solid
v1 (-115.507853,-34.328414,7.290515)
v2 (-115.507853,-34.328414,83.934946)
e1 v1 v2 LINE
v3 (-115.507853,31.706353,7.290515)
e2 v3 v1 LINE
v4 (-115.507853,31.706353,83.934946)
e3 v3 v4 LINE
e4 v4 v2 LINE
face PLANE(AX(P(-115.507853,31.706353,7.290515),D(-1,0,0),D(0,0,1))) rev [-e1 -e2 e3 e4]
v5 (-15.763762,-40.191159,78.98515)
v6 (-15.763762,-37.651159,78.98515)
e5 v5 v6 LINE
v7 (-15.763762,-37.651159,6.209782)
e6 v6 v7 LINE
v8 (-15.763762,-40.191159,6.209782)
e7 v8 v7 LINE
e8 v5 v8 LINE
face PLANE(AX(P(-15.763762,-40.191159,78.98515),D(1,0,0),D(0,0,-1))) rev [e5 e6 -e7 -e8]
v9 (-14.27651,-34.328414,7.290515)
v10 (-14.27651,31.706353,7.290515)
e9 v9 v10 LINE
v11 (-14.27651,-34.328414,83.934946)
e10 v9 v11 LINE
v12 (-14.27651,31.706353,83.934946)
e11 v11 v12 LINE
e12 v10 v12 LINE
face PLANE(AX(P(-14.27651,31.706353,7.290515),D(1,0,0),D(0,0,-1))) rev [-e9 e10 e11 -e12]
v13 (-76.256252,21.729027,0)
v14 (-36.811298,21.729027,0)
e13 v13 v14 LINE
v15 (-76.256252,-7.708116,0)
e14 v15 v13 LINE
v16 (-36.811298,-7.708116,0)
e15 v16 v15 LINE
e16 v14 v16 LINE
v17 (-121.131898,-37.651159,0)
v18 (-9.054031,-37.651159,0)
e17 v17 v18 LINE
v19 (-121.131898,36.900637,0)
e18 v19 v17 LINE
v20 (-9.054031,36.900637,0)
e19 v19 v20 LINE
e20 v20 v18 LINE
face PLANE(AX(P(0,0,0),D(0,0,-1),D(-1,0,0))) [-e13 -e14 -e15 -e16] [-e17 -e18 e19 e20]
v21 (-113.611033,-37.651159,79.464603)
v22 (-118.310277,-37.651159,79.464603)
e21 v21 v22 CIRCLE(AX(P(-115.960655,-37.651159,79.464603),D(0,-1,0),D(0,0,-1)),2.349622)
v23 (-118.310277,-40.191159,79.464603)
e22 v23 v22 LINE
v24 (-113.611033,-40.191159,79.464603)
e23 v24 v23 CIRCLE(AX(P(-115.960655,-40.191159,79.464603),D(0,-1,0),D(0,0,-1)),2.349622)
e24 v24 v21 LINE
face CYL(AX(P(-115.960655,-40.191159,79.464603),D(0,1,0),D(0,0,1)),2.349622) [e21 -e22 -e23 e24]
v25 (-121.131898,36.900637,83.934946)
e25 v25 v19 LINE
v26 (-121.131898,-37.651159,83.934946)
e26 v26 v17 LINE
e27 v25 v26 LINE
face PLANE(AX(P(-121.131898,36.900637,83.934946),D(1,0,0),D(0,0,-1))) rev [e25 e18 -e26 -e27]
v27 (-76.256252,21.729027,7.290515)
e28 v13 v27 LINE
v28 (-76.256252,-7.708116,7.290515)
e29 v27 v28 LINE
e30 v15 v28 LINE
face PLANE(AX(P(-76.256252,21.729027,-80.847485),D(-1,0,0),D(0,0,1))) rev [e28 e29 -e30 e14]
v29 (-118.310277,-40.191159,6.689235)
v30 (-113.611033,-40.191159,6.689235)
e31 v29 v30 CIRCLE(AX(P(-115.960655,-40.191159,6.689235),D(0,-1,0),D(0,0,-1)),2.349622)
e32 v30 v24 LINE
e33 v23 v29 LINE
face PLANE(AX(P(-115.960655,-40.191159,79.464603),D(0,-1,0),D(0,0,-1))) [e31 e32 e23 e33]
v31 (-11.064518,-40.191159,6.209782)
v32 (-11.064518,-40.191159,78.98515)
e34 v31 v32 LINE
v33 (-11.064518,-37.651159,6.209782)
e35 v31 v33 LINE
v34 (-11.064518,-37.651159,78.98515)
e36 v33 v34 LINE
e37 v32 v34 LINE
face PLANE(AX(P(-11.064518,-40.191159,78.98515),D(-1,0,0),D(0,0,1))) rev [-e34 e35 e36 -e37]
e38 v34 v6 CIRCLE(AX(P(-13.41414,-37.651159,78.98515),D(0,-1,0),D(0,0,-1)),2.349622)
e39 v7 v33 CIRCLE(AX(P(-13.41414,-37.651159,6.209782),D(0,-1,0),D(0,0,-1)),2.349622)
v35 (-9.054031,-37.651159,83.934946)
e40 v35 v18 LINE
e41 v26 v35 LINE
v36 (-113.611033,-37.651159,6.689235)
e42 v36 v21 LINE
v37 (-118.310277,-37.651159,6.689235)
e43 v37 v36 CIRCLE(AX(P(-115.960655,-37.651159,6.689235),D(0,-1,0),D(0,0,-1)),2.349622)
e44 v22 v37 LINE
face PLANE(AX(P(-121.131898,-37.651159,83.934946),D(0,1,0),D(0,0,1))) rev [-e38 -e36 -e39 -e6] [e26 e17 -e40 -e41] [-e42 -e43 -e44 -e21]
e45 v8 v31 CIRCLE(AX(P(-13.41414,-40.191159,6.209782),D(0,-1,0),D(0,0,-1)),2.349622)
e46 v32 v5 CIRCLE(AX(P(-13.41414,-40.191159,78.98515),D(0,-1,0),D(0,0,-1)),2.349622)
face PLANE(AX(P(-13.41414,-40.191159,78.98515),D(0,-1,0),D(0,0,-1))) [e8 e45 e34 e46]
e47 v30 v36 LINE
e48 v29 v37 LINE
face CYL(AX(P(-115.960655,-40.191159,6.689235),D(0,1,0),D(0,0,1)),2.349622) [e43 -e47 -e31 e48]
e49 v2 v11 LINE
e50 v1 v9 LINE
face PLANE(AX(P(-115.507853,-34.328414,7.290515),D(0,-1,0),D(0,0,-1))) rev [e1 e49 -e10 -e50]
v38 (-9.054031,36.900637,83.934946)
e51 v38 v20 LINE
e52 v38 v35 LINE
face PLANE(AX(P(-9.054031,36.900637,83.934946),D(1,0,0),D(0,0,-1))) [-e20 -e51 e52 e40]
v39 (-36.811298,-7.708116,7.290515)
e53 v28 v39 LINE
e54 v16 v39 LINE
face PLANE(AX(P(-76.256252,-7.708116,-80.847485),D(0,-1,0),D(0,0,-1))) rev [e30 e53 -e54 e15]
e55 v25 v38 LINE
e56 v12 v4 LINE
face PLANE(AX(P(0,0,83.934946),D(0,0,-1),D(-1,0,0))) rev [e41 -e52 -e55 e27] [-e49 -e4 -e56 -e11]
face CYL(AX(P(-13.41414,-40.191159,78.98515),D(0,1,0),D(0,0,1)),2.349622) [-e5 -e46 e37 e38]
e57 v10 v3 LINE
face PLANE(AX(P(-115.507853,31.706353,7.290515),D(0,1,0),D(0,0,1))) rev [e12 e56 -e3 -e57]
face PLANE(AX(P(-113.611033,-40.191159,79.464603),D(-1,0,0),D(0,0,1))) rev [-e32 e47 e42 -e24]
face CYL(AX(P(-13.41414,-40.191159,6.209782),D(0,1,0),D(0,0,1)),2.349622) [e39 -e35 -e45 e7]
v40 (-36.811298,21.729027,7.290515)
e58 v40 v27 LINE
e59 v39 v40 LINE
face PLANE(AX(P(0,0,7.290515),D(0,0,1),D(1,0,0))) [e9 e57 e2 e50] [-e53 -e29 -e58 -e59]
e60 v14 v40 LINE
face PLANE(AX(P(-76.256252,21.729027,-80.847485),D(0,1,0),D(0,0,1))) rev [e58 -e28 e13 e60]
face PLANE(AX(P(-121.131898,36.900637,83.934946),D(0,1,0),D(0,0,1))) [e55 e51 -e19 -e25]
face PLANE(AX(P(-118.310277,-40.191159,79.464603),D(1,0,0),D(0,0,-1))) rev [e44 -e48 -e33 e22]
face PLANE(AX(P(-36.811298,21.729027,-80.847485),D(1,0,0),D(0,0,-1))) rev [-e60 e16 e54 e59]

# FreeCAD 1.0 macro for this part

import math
import FreeCAD as App
import Part
import Sketcher
from FreeCAD import Vector
Q = App.Units.Quantity


def add_polygon(sketch, points):
    """Adds a closed chain of lines whose ends are joined by coincident constraints."""
    first, n = sketch.GeometryCount, len(points)
    for a, b in zip(points, points[1:] + points[:1]):
        sketch.addGeometry(Part.LineSegment(App.Vector(*a, 0), App.Vector(*b, 0)), False)
    for i in range(n):
        sketch.addConstraint(Sketcher.Constraint("Coincident", first + i, 2, first + (i + 1) % n, 1))

doc = App.newDocument("Part")
params = doc.addObject("Spreadsheet::Sheet", "Params")
for row, (alias, value) in enumerate([
    ("pad1_length", "83.934946 mm"),
    ("pocket1_length", "76.644431 mm"),
    ("pocket2_length", "3.47 in"),
    ("pad2_length", "0.1 in"),
], start=1):
    params.set(f"A{row}", alias)
    params.set(f"B{row}", "=" + value)
    params.setAlias(f"B{row}", alias)

body = doc.addObject("PartDesign::Body", "Body")

sketch1 = doc.addObject("Sketcher::SketchObject", "Sketch")
body.addObject(sketch1)
sketch1.AttachmentSupport = (doc.XY_Plane, [""])
sketch1.MapMode = "FlatFace"
add_polygon(sketch1, [(-121, 37), (-121, -38), (-9, -38), (-9, 37)])
sketch1.addConstraint([
    Sketcher.Constraint("Vertical", 0),
    Sketcher.Constraint("Horizontal", 1),
    Sketcher.Constraint("Vertical", 2),
    Sketcher.Constraint("Horizontal", 3),
    Sketcher.Constraint("DistanceX", 0, 2, -1, 1, Q("121.131898 mm")),
    Sketcher.Constraint("DistanceX", 1, 1, 1, 2, Q("112.077868 mm")),
    Sketcher.Constraint("DistanceY", 0, 2, 0, 1, Q("74.551796 mm")),
    Sketcher.Constraint("DistanceY", 0, 2, -1, 1, Q("37.651159 mm")),
])
pad1 = doc.addObject("PartDesign::Pad", "Pad")
body.addObject(pad1)
pad1.Profile = sketch1
pad1.setExpression("Length", "Params.pad1_length")

sketch2 = doc.addObject("Sketcher::SketchObject", "Sketch001")
body.addObject(sketch2)
sketch2.AttachmentSupport = (doc.XY_Plane, [""])
sketch2.MapMode = "FlatFace"
sketch2.AttachmentOffset = App.Placement(Vector(0, 0, 83.934946), App.Rotation())
add_polygon(sketch2, [(-116, 32), (-116, -34), (-14, -34), (-14, 32)])
sketch2.addConstraint([
    Sketcher.Constraint("Vertical", 0),
    Sketcher.Constraint("Horizontal", 1),
    Sketcher.Constraint("Vertical", 2),
    Sketcher.Constraint("Horizontal", 3),
    Sketcher.Constraint("DistanceX", 1, 1, 1, 2, Q("101.231344 mm")),
    Sketcher.Constraint("DistanceY", 0, 2, 0, 1, Q("66.034767 mm")),
    Sketcher.Constraint("DistanceX", 1, 2, -1, 1, Q("14.27651 mm")),
    Sketcher.Constraint("DistanceY", 0, 2, -1, 1, Q("34.328414 mm")),
])
pocket1 = doc.addObject("PartDesign::Pocket", "Pocket")
body.addObject(pocket1)
pocket1.Profile = sketch2
pocket1.setExpression("Length", "Params.pocket1_length")

sketch3 = doc.addObject("Sketcher::SketchObject", "Sketch002")
body.addObject(sketch3)
sketch3.AttachmentSupport = (doc.XY_Plane, [""])
sketch3.MapMode = "FlatFace"
sketch3.AttachmentOffset = App.Placement(Vector(0, 0, 7.290515), App.Rotation())
add_polygon(sketch3, [(-76, 22), (-76, -8), (-37, -8), (-37, 22)])
sketch3.addConstraint([
    Sketcher.Constraint("Vertical", 0),
    Sketcher.Constraint("Horizontal", 1),
    Sketcher.Constraint("Vertical", 2),
    Sketcher.Constraint("Horizontal", 3),
    Sketcher.Constraint("DistanceX", 1, 1, 1, 2, Q("39.444954 mm")),
    Sketcher.Constraint("DistanceY", 0, 2, 0, 1, Q("29.437143 mm")),
    Sketcher.Constraint("DistanceX", 0, 2, -1, 1, Q("76.256252 mm")),
    Sketcher.Constraint("DistanceY", 0, 2, -1, 1, Q("7.708116 mm")),
])
pocket2 = doc.addObject("PartDesign::Pocket", "Pocket001")
body.addObject(pocket2)
pocket2.Profile = sketch3
pocket2.setExpression("Length", "Params.pocket2_length")

sketch4 = doc.addObject("Sketcher::SketchObject", "Sketch003")
body.addObject(sketch4)
sketch4.AttachmentSupport = (doc.XZ_Plane, [""])
sketch4.MapMode = "FlatFace"
sketch4.AttachmentOffset = App.Placement(Vector(0, 0, 37.651159), App.Rotation())
sketch4.addGeometry([
    Part.LineSegment(Vector(-113.6, 6.7, 0), Vector(-113.6, 79.5, 0)),
    Part.ArcOfCircle(Part.Circle(Vector(-116, 79.5, 0), Vector(0, 0, 1), 2.3), math.radians(0), math.radians(180)),
    Part.LineSegment(Vector(-118.3, 79.5, 0), Vector(-118.3, 6.7, 0)),
    Part.ArcOfCircle(Part.Circle(Vector(-116, 6.7, 0), Vector(0, 0, 1), 2.3), math.radians(180), math.radians(360)),
    Part.LineSegment(Vector(-11.1, 6.2, 0), Vector(-11.1, 79, 0)),
    Part.ArcOfCircle(Part.Circle(Vector(-13.4, 79, 0), Vector(0, 0, 1), 2.3), math.radians(0), math.radians(180)),
    Part.LineSegment(Vector(-15.8, 79, 0), Vector(-15.8, 6.2, 0)),
    Part.ArcOfCircle(Part.Circle(Vector(-13.4, 6.2, 0), Vector(0, 0, 1), 2.3), math.radians(180), math.radians(360)),
], False)
sketch4.addConstraint([
    Sketcher.Constraint("Tangent", 0, 2, 1, 1),
    Sketcher.Constraint("Tangent", 1, 2, 2, 1),
    Sketcher.Constraint("Tangent", 2, 2, 3, 1),
    Sketcher.Constraint("Tangent", 3, 2, 0, 1),
    Sketcher.Constraint("Tangent", 4, 2, 5, 1),
    Sketcher.Constraint("Tangent", 5, 2, 6, 1),
    Sketcher.Constraint("Tangent", 6, 2, 7, 1),
    Sketcher.Constraint("Tangent", 7, 2, 4, 1),
    Sketcher.Constraint("Vertical", 0),
    Sketcher.Constraint("Vertical", 2),
    Sketcher.Constraint("Vertical", 4),
    Sketcher.Constraint("Vertical", 6),
    Sketcher.Constraint("Equal", 3, 5),
    Sketcher.Constraint("Equal", 2, 4),
    Sketcher.Constraint("Radius", 1, Q("2.349622 mm")),
    Sketcher.Constraint("DistanceY", 0, 1, 0, 2, Q("72.775368 mm")),
    Sketcher.Constraint("DistanceX", 5, 3, -1, 1, Q("13.41414 mm")),
    Sketcher.Constraint("DistanceY", -1, 1, 5, 3, Q("78.98515 mm")),
    Sketcher.Constraint("DistanceY", 7, 3, 1, 3, Q("73.254821 mm")),
    Sketcher.Constraint("DistanceX", 1, 2, 4, 2, Q("107.245759 mm")),
])
pad2 = doc.addObject("PartDesign::Pad", "Pad001")
body.addObject(pad2)
pad2.Profile = sketch4
pad2.setExpression("Length", "Params.pad2_length")

doc.recompute()
